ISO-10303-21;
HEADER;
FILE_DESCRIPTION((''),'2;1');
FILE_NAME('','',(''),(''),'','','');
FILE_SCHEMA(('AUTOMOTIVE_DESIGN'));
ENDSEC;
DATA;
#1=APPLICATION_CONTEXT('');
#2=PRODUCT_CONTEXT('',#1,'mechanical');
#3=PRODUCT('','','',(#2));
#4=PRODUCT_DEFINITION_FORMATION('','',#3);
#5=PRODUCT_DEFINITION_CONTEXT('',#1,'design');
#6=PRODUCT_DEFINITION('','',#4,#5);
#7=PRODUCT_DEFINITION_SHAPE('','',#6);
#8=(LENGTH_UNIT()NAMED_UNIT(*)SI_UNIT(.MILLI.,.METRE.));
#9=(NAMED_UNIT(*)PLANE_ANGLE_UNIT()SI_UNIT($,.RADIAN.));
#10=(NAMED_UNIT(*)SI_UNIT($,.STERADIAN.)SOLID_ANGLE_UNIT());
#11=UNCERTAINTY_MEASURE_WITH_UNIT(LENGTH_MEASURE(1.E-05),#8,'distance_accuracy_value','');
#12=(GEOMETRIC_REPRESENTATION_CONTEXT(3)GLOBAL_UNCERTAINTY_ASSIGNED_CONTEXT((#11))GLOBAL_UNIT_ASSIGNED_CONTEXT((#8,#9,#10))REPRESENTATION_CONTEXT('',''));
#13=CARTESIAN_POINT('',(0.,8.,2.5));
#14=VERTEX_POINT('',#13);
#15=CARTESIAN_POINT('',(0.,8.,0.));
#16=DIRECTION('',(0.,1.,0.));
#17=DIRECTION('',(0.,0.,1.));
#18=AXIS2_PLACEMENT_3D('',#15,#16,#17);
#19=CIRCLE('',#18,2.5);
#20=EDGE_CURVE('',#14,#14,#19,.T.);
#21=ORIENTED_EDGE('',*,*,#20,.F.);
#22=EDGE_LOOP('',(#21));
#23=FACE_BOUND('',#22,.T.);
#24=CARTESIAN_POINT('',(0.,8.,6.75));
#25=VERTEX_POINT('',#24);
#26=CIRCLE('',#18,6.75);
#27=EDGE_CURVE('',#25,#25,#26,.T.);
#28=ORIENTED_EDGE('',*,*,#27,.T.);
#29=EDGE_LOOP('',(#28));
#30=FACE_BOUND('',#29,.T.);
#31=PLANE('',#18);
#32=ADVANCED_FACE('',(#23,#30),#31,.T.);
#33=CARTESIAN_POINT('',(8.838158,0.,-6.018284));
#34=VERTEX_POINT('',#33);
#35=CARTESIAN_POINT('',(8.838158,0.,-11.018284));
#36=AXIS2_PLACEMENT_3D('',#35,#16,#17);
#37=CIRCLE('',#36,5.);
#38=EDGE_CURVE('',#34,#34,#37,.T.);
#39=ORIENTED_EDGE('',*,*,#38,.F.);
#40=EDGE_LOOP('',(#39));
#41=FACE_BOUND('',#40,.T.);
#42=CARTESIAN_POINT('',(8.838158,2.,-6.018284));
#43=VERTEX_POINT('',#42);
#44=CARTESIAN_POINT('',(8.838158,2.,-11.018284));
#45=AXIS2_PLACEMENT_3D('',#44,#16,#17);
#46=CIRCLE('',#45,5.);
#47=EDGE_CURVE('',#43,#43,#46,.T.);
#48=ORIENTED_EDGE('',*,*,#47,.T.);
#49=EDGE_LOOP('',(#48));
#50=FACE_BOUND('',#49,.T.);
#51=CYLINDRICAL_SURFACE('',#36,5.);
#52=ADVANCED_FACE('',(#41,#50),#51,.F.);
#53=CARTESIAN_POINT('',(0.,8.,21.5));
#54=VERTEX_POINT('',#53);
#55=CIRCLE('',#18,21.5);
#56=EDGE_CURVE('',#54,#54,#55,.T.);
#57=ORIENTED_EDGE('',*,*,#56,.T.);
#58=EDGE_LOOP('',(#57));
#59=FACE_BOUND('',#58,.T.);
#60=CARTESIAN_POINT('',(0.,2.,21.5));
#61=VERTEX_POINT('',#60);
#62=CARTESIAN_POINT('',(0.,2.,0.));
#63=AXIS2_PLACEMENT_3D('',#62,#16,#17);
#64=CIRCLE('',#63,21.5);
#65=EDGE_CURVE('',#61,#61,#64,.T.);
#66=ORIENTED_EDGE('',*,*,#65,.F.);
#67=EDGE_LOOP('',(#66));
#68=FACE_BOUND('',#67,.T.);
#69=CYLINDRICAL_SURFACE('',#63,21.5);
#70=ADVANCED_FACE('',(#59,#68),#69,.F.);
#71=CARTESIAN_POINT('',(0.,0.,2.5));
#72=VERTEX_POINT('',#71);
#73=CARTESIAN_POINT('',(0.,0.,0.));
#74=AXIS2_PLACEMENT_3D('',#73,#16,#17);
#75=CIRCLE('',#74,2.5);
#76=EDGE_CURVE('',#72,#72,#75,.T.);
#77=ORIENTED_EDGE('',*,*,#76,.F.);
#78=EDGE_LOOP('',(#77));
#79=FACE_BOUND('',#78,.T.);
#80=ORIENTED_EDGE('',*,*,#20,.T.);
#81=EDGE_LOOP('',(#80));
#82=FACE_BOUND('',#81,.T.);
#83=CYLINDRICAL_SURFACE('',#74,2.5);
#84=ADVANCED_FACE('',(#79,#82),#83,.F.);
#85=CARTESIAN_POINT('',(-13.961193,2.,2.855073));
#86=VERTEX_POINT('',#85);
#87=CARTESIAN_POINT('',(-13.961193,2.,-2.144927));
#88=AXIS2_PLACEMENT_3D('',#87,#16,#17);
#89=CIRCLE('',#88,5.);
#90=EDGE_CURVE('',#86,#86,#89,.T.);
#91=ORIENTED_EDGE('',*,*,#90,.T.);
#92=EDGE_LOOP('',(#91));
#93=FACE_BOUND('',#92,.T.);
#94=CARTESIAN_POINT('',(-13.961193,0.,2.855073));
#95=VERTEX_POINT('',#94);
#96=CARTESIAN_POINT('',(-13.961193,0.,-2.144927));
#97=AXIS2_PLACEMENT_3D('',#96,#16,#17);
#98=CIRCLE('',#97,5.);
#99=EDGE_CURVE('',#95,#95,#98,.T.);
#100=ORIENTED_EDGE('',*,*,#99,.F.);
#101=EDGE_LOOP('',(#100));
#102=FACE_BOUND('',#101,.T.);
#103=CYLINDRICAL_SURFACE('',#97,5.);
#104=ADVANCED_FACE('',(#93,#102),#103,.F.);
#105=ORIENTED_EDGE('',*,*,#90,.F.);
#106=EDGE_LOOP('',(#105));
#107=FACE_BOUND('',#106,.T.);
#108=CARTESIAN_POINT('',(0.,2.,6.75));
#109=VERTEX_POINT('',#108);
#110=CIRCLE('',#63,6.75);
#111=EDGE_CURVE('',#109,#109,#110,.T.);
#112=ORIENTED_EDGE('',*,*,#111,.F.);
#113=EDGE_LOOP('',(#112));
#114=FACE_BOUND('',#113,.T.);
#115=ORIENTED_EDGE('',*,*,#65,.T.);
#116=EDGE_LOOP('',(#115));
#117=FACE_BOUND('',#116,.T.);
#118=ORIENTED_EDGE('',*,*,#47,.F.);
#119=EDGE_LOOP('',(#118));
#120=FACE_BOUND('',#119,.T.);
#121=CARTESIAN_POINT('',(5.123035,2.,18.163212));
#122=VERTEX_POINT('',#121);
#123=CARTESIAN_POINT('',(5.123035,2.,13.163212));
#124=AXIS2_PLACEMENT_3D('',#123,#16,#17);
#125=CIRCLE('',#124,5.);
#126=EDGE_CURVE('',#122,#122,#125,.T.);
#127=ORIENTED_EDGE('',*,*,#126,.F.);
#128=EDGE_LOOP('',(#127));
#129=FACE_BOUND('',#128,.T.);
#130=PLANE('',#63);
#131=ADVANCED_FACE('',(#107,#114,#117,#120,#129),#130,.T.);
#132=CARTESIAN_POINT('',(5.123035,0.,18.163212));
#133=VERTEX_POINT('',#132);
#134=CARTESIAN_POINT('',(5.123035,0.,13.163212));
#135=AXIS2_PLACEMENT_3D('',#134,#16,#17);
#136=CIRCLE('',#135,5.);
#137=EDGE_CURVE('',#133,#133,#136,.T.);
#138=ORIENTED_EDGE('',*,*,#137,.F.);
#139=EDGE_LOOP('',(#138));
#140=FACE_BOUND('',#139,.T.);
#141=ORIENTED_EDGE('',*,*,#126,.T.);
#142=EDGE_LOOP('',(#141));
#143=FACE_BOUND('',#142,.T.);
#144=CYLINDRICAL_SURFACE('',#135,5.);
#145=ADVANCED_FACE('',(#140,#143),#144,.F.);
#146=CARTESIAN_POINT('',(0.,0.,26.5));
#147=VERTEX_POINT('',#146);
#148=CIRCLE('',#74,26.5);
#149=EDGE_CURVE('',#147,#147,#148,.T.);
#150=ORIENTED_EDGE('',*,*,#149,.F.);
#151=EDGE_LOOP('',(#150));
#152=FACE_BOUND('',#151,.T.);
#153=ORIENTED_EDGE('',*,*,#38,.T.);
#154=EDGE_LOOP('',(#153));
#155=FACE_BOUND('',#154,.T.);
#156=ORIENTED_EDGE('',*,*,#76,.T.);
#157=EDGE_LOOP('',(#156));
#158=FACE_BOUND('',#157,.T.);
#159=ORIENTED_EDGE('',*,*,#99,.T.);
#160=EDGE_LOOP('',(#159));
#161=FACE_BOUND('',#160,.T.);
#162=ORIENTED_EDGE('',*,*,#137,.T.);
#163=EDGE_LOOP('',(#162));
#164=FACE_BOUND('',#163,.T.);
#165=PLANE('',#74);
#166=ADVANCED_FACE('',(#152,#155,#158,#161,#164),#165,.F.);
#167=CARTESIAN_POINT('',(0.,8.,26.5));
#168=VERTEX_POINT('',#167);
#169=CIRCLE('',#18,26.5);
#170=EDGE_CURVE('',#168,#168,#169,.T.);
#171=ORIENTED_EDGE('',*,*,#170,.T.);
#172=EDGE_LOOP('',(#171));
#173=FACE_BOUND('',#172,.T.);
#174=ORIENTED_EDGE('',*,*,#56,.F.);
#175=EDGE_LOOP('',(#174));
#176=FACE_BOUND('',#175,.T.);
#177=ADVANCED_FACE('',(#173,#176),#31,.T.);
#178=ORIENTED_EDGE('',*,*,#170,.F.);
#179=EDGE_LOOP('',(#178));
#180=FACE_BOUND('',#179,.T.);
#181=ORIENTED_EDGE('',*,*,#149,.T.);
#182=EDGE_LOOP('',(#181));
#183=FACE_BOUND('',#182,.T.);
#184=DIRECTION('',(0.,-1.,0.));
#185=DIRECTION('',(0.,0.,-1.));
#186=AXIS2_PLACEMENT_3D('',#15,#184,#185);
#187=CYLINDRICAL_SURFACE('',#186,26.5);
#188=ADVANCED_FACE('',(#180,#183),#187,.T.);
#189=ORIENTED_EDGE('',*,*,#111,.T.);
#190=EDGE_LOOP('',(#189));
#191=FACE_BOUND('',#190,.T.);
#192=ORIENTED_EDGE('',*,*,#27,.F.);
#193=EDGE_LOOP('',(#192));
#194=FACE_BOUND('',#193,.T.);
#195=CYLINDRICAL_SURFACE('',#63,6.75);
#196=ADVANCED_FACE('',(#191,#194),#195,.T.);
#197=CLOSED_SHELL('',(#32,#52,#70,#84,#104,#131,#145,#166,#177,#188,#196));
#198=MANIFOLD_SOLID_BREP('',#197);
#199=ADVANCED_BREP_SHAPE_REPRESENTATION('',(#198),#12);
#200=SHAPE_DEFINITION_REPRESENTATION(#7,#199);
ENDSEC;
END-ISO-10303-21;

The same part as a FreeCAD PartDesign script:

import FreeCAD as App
import Part
import Sketcher

V = App.Vector

doc = App.newDocument("Part")
params = doc.addObject("Spreadsheet::Sheet", "Params")
for row, (alias, value) in enumerate([
    ("sketch1_diameter", "53 mm"),
    ("pad1_length", "8 mm"),
    ("sketch2_diameter", "43 mm"),
    ("sketch2_diameter2", "13.5 mm"),
    ("pocket1_length", "6 mm"),
    ("sketch3_diameter", "5 mm"),
    ("sketch4_diameter", "10 mm"),
], start=1):
    params.set(f"A{row}", alias)
    params.set(f"B{row}", "=" + value)
    params.setAlias(f"B{row}", alias)

body = doc.addObject("PartDesign::Body", "Body")

sketch1 = body.newObject("Sketcher::SketchObject", "Sketch")
sketch1.AttachmentSupport = (doc.getObject("XZ_Plane"), [""])
sketch1.MapMode = "FlatFace"
sketch1.addGeometry(Part.Circle(V(0, 0, 0), V(0, 0, 1), 26), False)
sketch1.addConstraint(Sketcher.Constraint("Coincident", 0, 3, -1, 1))
sketch1.addConstraint(Sketcher.Constraint("Diameter", 0, 53.0))
sketch1.setExpression("Constraints[1]", "Params.sketch1_diameter")
pad1 = body.newObject("PartDesign::Pad", "Pad")
pad1.Profile = sketch1
pad1.setExpression("Length", "Params.pad1_length")
pad1.Reversed = True

sketch2 = body.newObject("Sketcher::SketchObject", "Sketch001")
sketch2.AttachmentSupport = (doc.getObject("XZ_Plane"), [""])
sketch2.MapMode = "FlatFace"
sketch2.AttachmentOffset = App.Placement(V(0, 0, -8), App.Rotation())
sketch2.addGeometry(Part.Circle(V(0, 0, 0), V(0, 0, 1), 22), False)
sketch2.addGeometry(Part.Circle(V(0, 0, 0), V(0, 0, 1), 7), False)
sketch2.addConstraint(Sketcher.Constraint("Coincident", 0, 3, -1, 1))
sketch2.addConstraint(Sketcher.Constraint("Coincident", 1, 3, -1, 1))
sketch2.addConstraint(Sketcher.Constraint("Diameter", 0, 43.0))
sketch2.addConstraint(Sketcher.Constraint("Diameter", 1, 13.5))
sketch2.setExpression("Constraints[2]", "Params.sketch2_diameter")
sketch2.setExpression("Constraints[3]", "Params.sketch2_diameter2")
pocket1 = body.newObject("PartDesign::Pocket", "Pocket")
pocket1.Profile = sketch2
pocket1.setExpression("Length", "Params.pocket1_length")
pocket1.Reversed = True

sketch3 = body.newObject("Sketcher::SketchObject", "Sketch002")
sketch3.AttachmentSupport = (doc.getObject("XZ_Plane"), [""])
sketch3.MapMode = "FlatFace"
sketch3.AttachmentOffset = App.Placement(V(0, 0, -8), App.Rotation())
sketch3.addGeometry(Part.Circle(V(0, 0, 0), V(0, 0, 1), 2.5), False)
sketch3.addConstraint(Sketcher.Constraint("Coincident", 0, 3, -1, 1))
sketch3.addConstraint(Sketcher.Constraint("Diameter", 0, 5.0))
sketch3.setExpression("Constraints[1]", "Params.sketch3_diameter")
pocket2 = body.newObject("PartDesign::Pocket", "Pocket001")
pocket2.Profile = sketch3
pocket2.Type = "ThroughAll"
pocket2.Reversed = True

sketch4 = body.newObject("Sketcher::SketchObject", "Sketch003")
sketch4.AttachmentSupport = (doc.getObject("XZ_Plane"), [""])
sketch4.MapMode = "FlatFace"
sketch4.AttachmentOffset = App.Placement(V(0, 0, -2), App.Rotation())
sketch4.addGeometry(Part.Circle(V(-14, -2, 0), V(0, 0, 1), 5), False)
sketch4.addGeometry(Part.Circle(V(5, 13, 0), V(0, 0, 1), 5), False)
sketch4.addGeometry(Part.Circle(V(9, -11, 0), V(0, 0, 1), 5), False)
sketch4.addConstraint(Sketcher.Constraint("Equal", 0, 1))
sketch4.addConstraint(Sketcher.Constraint("Equal", 1, 2))
sketch4.addConstraint(Sketcher.Constraint("Diameter", 0, 10.0))
sketch4.addConstraint(Sketcher.Constraint("DistanceY", -1, 1, 1, 3, 13.163212))
sketch4.addConstraint(Sketcher.Constraint("DistanceX", -1, 1, 2, 3, 8.838158))
sketch4.addConstraint(Sketcher.Constraint("DistanceX", 0, 3, 1, 3, 19.084228))
sketch4.addConstraint(Sketcher.Constraint("DistanceY", 0, 3, 1, 3, 15.308139))
sketch4.addConstraint(Sketcher.Constraint("DistanceX", 0, 3, 2, 3, 22.799351))
sketch4.addConstraint(Sketcher.Constraint("DistanceY", 2, 3, -1, 1, 11.018284))
sketch4.setExpression("Constraints[2]", "Params.sketch4_diameter")
pocket3 = body.newObject("PartDesign::Pocket", "Pocket002")
pocket3.Profile = sketch4
pocket3.Type = "ThroughAll"
pocket3.Reversed = True

doc.recompute()
